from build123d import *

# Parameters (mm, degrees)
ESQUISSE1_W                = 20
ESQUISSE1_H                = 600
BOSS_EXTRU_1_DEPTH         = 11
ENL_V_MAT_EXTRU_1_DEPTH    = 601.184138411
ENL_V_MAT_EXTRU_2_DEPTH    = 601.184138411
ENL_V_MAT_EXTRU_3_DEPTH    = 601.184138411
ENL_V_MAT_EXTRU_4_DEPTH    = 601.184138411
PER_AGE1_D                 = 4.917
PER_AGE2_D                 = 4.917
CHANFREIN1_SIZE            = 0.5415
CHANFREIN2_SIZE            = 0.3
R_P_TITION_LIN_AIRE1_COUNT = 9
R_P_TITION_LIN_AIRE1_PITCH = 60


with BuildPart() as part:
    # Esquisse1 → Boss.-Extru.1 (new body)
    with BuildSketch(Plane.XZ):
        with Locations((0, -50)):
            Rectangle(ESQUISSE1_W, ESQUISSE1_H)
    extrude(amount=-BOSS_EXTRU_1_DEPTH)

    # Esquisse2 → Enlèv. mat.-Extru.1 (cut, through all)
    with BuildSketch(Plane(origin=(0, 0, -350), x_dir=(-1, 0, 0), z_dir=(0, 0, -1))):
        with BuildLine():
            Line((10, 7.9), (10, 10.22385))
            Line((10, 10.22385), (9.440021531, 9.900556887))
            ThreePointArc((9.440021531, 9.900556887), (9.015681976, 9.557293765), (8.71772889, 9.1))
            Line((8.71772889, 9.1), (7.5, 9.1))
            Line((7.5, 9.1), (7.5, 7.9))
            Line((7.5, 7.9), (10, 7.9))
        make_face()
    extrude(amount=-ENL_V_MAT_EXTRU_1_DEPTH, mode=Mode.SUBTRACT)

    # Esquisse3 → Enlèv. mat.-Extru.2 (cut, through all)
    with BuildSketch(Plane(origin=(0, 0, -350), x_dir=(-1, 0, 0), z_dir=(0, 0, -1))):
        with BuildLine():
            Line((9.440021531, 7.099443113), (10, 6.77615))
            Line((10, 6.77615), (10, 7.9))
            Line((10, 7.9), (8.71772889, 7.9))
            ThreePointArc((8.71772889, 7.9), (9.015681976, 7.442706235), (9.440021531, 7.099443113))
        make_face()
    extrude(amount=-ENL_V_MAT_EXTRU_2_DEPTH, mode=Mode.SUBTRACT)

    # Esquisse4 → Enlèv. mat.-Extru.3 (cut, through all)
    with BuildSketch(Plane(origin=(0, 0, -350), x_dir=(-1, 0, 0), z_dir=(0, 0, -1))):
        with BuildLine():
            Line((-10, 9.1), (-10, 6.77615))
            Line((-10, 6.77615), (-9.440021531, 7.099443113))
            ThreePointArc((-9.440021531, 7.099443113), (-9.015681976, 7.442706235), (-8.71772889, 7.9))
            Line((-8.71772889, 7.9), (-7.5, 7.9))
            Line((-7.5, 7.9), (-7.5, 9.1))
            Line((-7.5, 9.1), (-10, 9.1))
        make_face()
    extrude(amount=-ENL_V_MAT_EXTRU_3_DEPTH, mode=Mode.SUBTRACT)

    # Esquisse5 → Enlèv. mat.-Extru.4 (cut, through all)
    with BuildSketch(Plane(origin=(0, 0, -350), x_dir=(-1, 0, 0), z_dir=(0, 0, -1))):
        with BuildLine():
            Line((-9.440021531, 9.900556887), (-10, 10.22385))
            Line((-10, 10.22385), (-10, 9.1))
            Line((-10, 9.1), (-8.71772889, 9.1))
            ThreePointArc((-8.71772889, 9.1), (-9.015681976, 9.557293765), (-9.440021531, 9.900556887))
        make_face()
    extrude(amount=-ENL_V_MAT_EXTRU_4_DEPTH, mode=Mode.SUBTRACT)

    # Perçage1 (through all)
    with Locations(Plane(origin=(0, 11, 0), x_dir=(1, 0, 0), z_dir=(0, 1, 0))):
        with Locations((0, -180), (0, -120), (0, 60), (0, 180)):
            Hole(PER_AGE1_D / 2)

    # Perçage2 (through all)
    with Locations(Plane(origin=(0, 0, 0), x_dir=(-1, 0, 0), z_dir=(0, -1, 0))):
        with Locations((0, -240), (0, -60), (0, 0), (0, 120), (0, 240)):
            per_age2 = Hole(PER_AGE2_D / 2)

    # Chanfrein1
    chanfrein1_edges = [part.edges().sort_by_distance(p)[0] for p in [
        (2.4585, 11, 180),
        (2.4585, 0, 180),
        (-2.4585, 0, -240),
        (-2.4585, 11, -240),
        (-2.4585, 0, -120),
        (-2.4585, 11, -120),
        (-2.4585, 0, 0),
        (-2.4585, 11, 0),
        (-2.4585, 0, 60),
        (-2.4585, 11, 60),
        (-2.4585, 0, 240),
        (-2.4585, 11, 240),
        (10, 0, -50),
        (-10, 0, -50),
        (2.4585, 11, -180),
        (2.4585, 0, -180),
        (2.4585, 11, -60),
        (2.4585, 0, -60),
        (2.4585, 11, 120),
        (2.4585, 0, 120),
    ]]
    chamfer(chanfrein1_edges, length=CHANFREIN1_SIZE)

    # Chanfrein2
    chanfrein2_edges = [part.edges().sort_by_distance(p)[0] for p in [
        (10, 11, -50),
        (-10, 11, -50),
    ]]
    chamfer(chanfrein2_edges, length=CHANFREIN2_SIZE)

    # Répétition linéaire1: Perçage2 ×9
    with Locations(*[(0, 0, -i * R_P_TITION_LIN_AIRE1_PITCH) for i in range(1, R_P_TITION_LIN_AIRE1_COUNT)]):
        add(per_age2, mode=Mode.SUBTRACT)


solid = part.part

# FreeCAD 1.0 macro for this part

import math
import FreeCAD as App
import Part
import Sketcher
Q = App.Units.Quantity


def edges_at(feature, points):
    """Names of the edges that pass closest to the given points."""
    edges = feature.Shape.Edges
    near = lambda p: min(range(len(edges)), key=lambda i: edges[i].distToShape(Part.Vertex(*p))[0])
    return sorted({f"Edge{near(p) + 1}" for p in points})

doc = App.newDocument("Part")
params = doc.addObject("Spreadsheet::Sheet", "Params")
for row, (alias, value) in enumerate([
    ("sketch1_width", "20 mm"),
    ("sketch1_height", "600 mm"),
    ("pad1_length", "11 mm"),
    ("sketch2_radius", "1.75 mm"),
    ("sketch2_width", "2.5 mm"),
    ("sketch2_height", "1.2 mm"),
    ("sketch3_radius", "1.75 mm"),
    ("sketch4_radius", "1.75 mm"),
    ("sketch4_width", "2.5 mm"),
    ("sketch4_height", "1.2 mm"),
    ("sketch5_radius", "1.75 mm"),
    ("hole_diameter", "4.917 mm"),
    ("hole2_diameter", "4.917 mm"),
    ("chamfer_size", "0.5415 mm"),
    ("chamfer2_size", "0.3 mm"),
    ("linearpattern_pitch", "60 mm"),
], start=1):
    params.set(f"A{row}", alias)
    params.set(f"B{row}", "=" + value)
    params.setAlias(f"B{row}", alias)

body = doc.addObject("PartDesign::Body", "Body")

# Sketch on XZ plane
sketch1 = body.newObject("Sketcher::SketchObject", "Sketch")
sketch1.AttachmentSupport = (doc.getObject("XZ_Plane"), [""])
sketch1.MapMode = "FlatFace"
sketch1.addGeometry(Part.LineSegment(App.Vector(-10, 250, 0), App.Vector(-10, -350, 0)), False)
sketch1.addGeometry(Part.LineSegment(App.Vector(-10, -350, 0), App.Vector(10, -350, 0)), False)
sketch1.addGeometry(Part.LineSegment(App.Vector(10, -350, 0), App.Vector(10, 250, 0)), False)
sketch1.addGeometry(Part.LineSegment(App.Vector(10, 250, 0), App.Vector(-10, 250, 0)), False)
sketch1.addConstraint(Sketcher.Constraint("Coincident", 0, 2, 1, 1))
sketch1.addConstraint(Sketcher.Constraint("Coincident", 1, 2, 2, 1))
sketch1.addConstraint(Sketcher.Constraint("Coincident", 2, 2, 3, 1))
sketch1.addConstraint(Sketcher.Constraint("Coincident", 3, 2, 0, 1))
sketch1.addConstraint(Sketcher.Constraint("Vertical", 0))
sketch1.addConstraint(Sketcher.Constraint("Horizontal", 1))
sketch1.addConstraint(Sketcher.Constraint("Vertical", 2))
sketch1.addConstraint(Sketcher.Constraint("Horizontal", 3))
sketch1.addConstraint(Sketcher.Constraint("DistanceX", 1, 1, 1, 2, Q("20 mm")))
sketch1.addConstraint(Sketcher.Constraint("DistanceY", 0, 2, 0, 1, Q("600 mm")))
sketch1.addConstraint(Sketcher.Constraint("DistanceX", 0, 2, -1, 1, Q("10 mm")))
sketch1.addConstraint(Sketcher.Constraint("DistanceY", 0, 2, -1, 1, Q("350 mm")))
sketch1.setExpression("Constraints[8]", "Params.sketch1_width")
sketch1.setExpression("Constraints[9]", "Params.sketch1_height")
pad1 = body.newObject("PartDesign::Pad", "Pad")
pad1.Profile = sketch1
pad1.setExpression("Length", "Params.pad1_length")
pad1.Reversed = True

# Sketch on XY plane
sketch2 = body.newObject("Sketcher::SketchObject", "Sketch001")
sketch2.AttachmentSupport = (doc.getObject("XY_Plane"), [""])
sketch2.MapMode = "FlatFace"
sketch2.AttachmentOffset = App.Placement(App.Vector(0, 0, -350), App.Rotation())
sketch2.addGeometry(Part.LineSegment(App.Vector(-10, 7.9, 0), App.Vector(-10, 10.22385, 0)), False)
sketch2.addGeometry(Part.LineSegment(App.Vector(-10, 10.22385, 0), App.Vector(-9.440022, 9.900557, 0)), False)
sketch2.addGeometry(Part.ArcOfCircle(Part.Circle(App.Vector(-10.315, 8.385, 0), App.Vector(0, 0, 1), 1.75), math.radians(24.115126), math.radians(60.000814)), False)
sketch2.addGeometry(Part.LineSegment(App.Vector(-8.717729, 9.1, 0), App.Vector(-7.5, 9.1, 0)), False)
sketch2.addGeometry(Part.LineSegment(App.Vector(-7.5, 9.1, 0), App.Vector(-7.5, 7.9, 0)), False)
sketch2.addGeometry(Part.LineSegment(App.Vector(-7.5, 7.9, 0), App.Vector(-10, 7.9, 0)), False)
sketch2.addConstraint(Sketcher.Constraint("Coincident", 0, 2, 1, 1))
sketch2.addConstraint(Sketcher.Constraint("Tangent", 1, 2, 2, 2))
sketch2.addConstraint(Sketcher.Constraint("Coincident", 2, 1, 3, 1))
sketch2.addConstraint(Sketcher.Constraint("Coincident", 3, 2, 4, 1))
sketch2.addConstraint(Sketcher.Constraint("Coincident", 4, 2, 5, 1))
sketch2.addConstraint(Sketcher.Constraint("Coincident", 5, 2, 0, 1))
sketch2.addConstraint(Sketcher.Constraint("Vertical", 0))
sketch2.addConstraint(Sketcher.Constraint("Horizontal", 3))
sketch2.addConstraint(Sketcher.Constraint("Vertical", 4))
sketch2.addConstraint(Sketcher.Constraint("Horizontal", 5))
sketch2.addConstraint(Sketcher.Constraint("Radius", 2, Q("1.75 mm")))
sketch2.addConstraint(Sketcher.Constraint("DistanceX", 5, 2, 5, 1, Q("2.5 mm")))
sketch2.addConstraint(Sketcher.Constraint("DistanceY", 4, 2, 4, 1, Q("1.2 mm")))
sketch2.addConstraint(Sketcher.Constraint("DistanceX", 0, 2, -1, 1, Q("10 mm")))
sketch2.addConstraint(Sketcher.Constraint("DistanceY", -1, 1, 2, 1, Q("9.1 mm")))
sketch2.addConstraint(Sketcher.Constraint("DistanceX", 2, 3, -1, 1, Q("10.315 mm")))
sketch2.addConstraint(Sketcher.Constraint("DistanceY", -1, 1, 2, 3, Q("8.385 mm")))
sketch2.addConstraint(Sketcher.Constraint("DistanceY", 0, 1, 0, 2, Q("2.32385 mm")))
sketch2.setExpression("Constraints[10]", "Params.sketch2_radius")
sketch2.setExpression("Constraints[11]", "Params.sketch2_width")
sketch2.setExpression("Constraints[12]", "Params.sketch2_height")
pocket1 = body.newObject("PartDesign::Pocket", "Pocket")
pocket1.Profile = sketch2
pocket1.Type = "ThroughAll"
pocket1.Reversed = True

# Sketch on XY plane
sketch3 = body.newObject("Sketcher::SketchObject", "Sketch002")
sketch3.AttachmentSupport = (doc.getObject("XY_Plane"), [""])
sketch3.MapMode = "FlatFace"
sketch3.AttachmentOffset = App.Placement(App.Vector(0, 0, -350), App.Rotation())
sketch3.addGeometry(Part.LineSegment(App.Vector(-9.440022, 7.099443, 0), App.Vector(-10, 6.77615, 0)), False)
sketch3.addGeometry(Part.LineSegment(App.Vector(-10, 6.77615, 0), App.Vector(-10, 7.9, 0)), False)
sketch3.addGeometry(Part.LineSegment(App.Vector(-10, 7.9, 0), App.Vector(-8.717729, 7.9, 0)), False)
sketch3.addGeometry(Part.ArcOfCircle(Part.Circle(App.Vector(-10.315, 8.615, 0), App.Vector(0, 0, 1), 1.75), math.radians(-60.000814), math.radians(-24.115126)), False)
sketch3.addConstraint(Sketcher.Constraint("Coincident", 0, 2, 1, 1))
sketch3.addConstraint(Sketcher.Constraint("Coincident", 1, 2, 2, 1))
sketch3.addConstraint(Sketcher.Constraint("Coincident", 2, 2, 3, 2))
sketch3.addConstraint(Sketcher.Constraint("Tangent", 3, 1, 0, 1))
sketch3.addConstraint(Sketcher.Constraint("Vertical", 1))
sketch3.addConstraint(Sketcher.Constraint("Horizontal", 2))
sketch3.addConstraint(Sketcher.Constraint("Radius", 3, Q("1.75 mm")))
sketch3.addConstraint(Sketcher.Constraint("DistanceX", 0, 2, -1, 1, Q("10 mm")))
sketch3.addConstraint(Sketcher.Constraint("DistanceY", -1, 1, 1, 2, Q("7.9 mm")))
sketch3.addConstraint(Sketcher.Constraint("DistanceX", 3, 3, -1, 1, Q("10.315 mm")))
sketch3.addConstraint(Sketcher.Constraint("DistanceY", -1, 1, 3, 3, Q("8.615 mm")))
sketch3.addConstraint(Sketcher.Constraint("DistanceY", 1, 1, 1, 2, Q("1.12385 mm")))
sketch3.setExpression("Constraints[6]", "Params.sketch3_radius")
pocket2 = body.newObject("PartDesign::Pocket", "Pocket001")
pocket2.Profile = sketch3
pocket2.Type = "ThroughAll"
pocket2.Reversed = True

# Sketch on XY plane
sketch4 = body.newObject("Sketcher::SketchObject", "Sketch003")
sketch4.AttachmentSupport = (doc.getObject("XY_Plane"), [""])
sketch4.MapMode = "FlatFace"
sketch4.AttachmentOffset = App.Placement(App.Vector(0, 0, -350), App.Rotation())
sketch4.addGeometry(Part.LineSegment(App.Vector(10, 9.1, 0), App.Vector(10, 6.77615, 0)), False)
sketch4.addGeometry(Part.LineSegment(App.Vector(10, 6.77615, 0), App.Vector(9.440022, 7.099443, 0)), False)
sketch4.addGeometry(Part.ArcOfCircle(Part.Circle(App.Vector(10.315, 8.615, 0), App.Vector(0, 0, 1), 1.75), math.radians(-155.884874), math.radians(-119.999186)), False)
sketch4.addGeometry(Part.LineSegment(App.Vector(8.717729, 7.9, 0), App.Vector(7.5, 7.9, 0)), False)
sketch4.addGeometry(Part.LineSegment(App.Vector(7.5, 7.9, 0), App.Vector(7.5, 9.1, 0)), False)
sketch4.addGeometry(Part.LineSegment(App.Vector(7.5, 9.1, 0), App.Vector(10, 9.1, 0)), False)
sketch4.addConstraint(Sketcher.Constraint("Coincident", 0, 2, 1, 1))
sketch4.addConstraint(Sketcher.Constraint("Tangent", 1, 2, 2, 2))
sketch4.addConstraint(Sketcher.Constraint("Coincident", 2, 1, 3, 1))
sketch4.addConstraint(Sketcher.Constraint("Coincident", 3, 2, 4, 1))
sketch4.addConstraint(Sketcher.Constraint("Coincident", 4, 2, 5, 1))
sketch4.addConstraint(Sketcher.Constraint("Coincident", 5, 2, 0, 1))
sketch4.addConstraint(Sketcher.Constraint("Vertical", 0))
sketch4.addConstraint(Sketcher.Constraint("Horizontal", 3))
sketch4.addConstraint(Sketcher.Constraint("Vertical", 4))
sketch4.addConstraint(Sketcher.Constraint("Horizontal", 5))
sketch4.addConstraint(Sketcher.Constraint("Radius", 2, Q("1.75 mm")))
sketch4.addConstraint(Sketcher.Constraint("DistanceX", 5, 1, 5, 2, Q("2.5 mm")))
sketch4.addConstraint(Sketcher.Constraint("DistanceY", 4, 1, 4, 2, Q("1.2 mm")))
sketch4.addConstraint(Sketcher.Constraint("DistanceX", -1, 1, 0, 2, Q("10 mm")))
sketch4.addConstraint(Sketcher.Constraint("DistanceY", -1, 1, 2, 1, Q("7.9 mm")))
sketch4.addConstraint(Sketcher.Constraint("DistanceX", -1, 1, 2, 3, Q("10.315 mm")))
sketch4.addConstraint(Sketcher.Constraint("DistanceY", -1, 1, 2, 3, Q("8.615 mm")))
sketch4.addConstraint(Sketcher.Constraint("DistanceY", 0, 2, 0, 1, Q("2.32385 mm")))
sketch4.setExpression("Constraints[10]", "Params.sketch4_radius")
sketch4.setExpression("Constraints[11]", "Params.sketch4_width")
sketch4.setExpression("Constraints[12]", "Params.sketch4_height")
pocket3 = body.newObject("PartDesign::Pocket", "Pocket002")
pocket3.Profile = sketch4
pocket3.Type = "ThroughAll"
pocket3.Reversed = True

# Sketch on XY plane
sketch5 = body.newObject("Sketcher::SketchObject", "Sketch004")
sketch5.AttachmentSupport = (doc.getObject("XY_Plane"), [""])
sketch5.MapMode = "FlatFace"
sketch5.AttachmentOffset = App.Placement(App.Vector(0, 0, -350), App.Rotation())
sketch5.addGeometry(Part.LineSegment(App.Vector(9.440022, 9.900557, 0), App.Vector(10, 10.22385, 0)), False)
sketch5.addGeometry(Part.LineSegment(App.Vector(10, 10.22385, 0), App.Vector(10, 9.1, 0)), False)
sketch5.addGeometry(Part.LineSegment(App.Vector(10, 9.1, 0), App.Vector(8.717729, 9.1, 0)), False)
sketch5.addGeometry(Part.ArcOfCircle(Part.Circle(App.Vector(10.315, 8.385, 0), App.Vector(0, 0, 1), 1.75), math.radians(119.999186), math.radians(155.884874)), False)
sketch5.addConstraint(Sketcher.Constraint("Coincident", 0, 2, 1, 1))
sketch5.addConstraint(Sketcher.Constraint("Coincident", 1, 2, 2, 1))
sketch5.addConstraint(Sketcher.Constraint("Coincident", 2, 2, 3, 2))
sketch5.addConstraint(Sketcher.Constraint("Tangent", 3, 1, 0, 1))
sketch5.addConstraint(Sketcher.Constraint("Vertical", 1))
sketch5.addConstraint(Sketcher.Constraint("Horizontal", 2))
sketch5.addConstraint(Sketcher.Constraint("Radius", 3, Q("1.75 mm")))
sketch5.addConstraint(Sketcher.Constraint("DistanceX", -1, 1, 0, 2, Q("10 mm")))
sketch5.addConstraint(Sketcher.Constraint("DistanceY", -1, 1, 1, 2, Q("9.1 mm")))
sketch5.addConstraint(Sketcher.Constraint("DistanceX", -1, 1, 3, 3, Q("10.315 mm")))
sketch5.addConstraint(Sketcher.Constraint("DistanceY", -1, 1, 3, 3, Q("8.385 mm")))
sketch5.addConstraint(Sketcher.Constraint("DistanceY", 1, 2, 1, 1, Q("1.12385 mm")))
sketch5.setExpression("Constraints[6]", "Params.sketch5_radius")
pocket4 = body.newObject("PartDesign::Pocket", "Pocket003")
pocket4.Profile = sketch5
pocket4.Type = "ThroughAll"
pocket4.Reversed = True

# Sketch on XZ plane
sketch6 = body.newObject("Sketcher::SketchObject", "Sketch005")
sketch6.AttachmentSupport = (doc.getObject("XZ_Plane"), [""])
sketch6.MapMode = "FlatFace"
sketch6.AttachmentOffset = App.Placement(App.Vector(0, 0, -11), App.Rotation())
sketch6.addGeometry(Part.Circle(App.Vector(0, 180, 0), App.Vector(0, 0, 1), 2.4585), False)
sketch6.addGeometry(Part.Circle(App.Vector(0, 120, 0), App.Vector(0, 0, 1), 2.4585), False)
sketch6.addGeometry(Part.Circle(App.Vector(0, -60, 0), App.Vector(0, 0, 1), 2.4585), False)
sketch6.addGeometry(Part.Circle(App.Vector(0, -180, 0), App.Vector(0, 0, 1), 2.4585), False)
sketch6.addConstraint(Sketcher.Constraint("Equal", 0, 1))
sketch6.addConstraint(Sketcher.Constraint("Equal", 1, 2))
sketch6.addConstraint(Sketcher.Constraint("Equal", 2, 3))
sketch6.addConstraint(Sketcher.Constraint("Symmetric", 0, 3, 3, 3, -1, 1))
sketch6.addConstraint(Sketcher.Constraint("PointOnObject", 0, 3, -2))
sketch6.addConstraint(Sketcher.Constraint("PointOnObject", 1, 3, -2))
sketch6.addConstraint(Sketcher.Constraint("PointOnObject", 2, 3, -2))
sketch6.addConstraint(Sketcher.Constraint("Diameter", 0, Q("4.917 mm")))
sketch6.addConstraint(Sketcher.Constraint("DistanceY", -1, 1, 0, 3, Q("180 mm")))
sketch6.addConstraint(Sketcher.Constraint("DistanceY", -1, 1, 1, 3, Q("120 mm")))
sketch6.addConstraint(Sketcher.Constraint("DistanceY", 2, 3, -1, 1, Q("60 mm")))
doc.recompute()
hole = body.newObject("PartDesign::Hole", "Hole")
hole.Profile = sketch6
hole.ThreadType = "None"
hole.setExpression("Diameter", "Params.hole_diameter")
hole.DepthType = "ThroughAll"
hole.Reversed = True

# Sketch on XZ plane
sketch7 = body.newObject("Sketcher::SketchObject", "Sketch006")
sketch7.AttachmentSupport = (doc.getObject("XZ_Plane"), [""])
sketch7.MapMode = "FlatFace"
sketch7.addGeometry(Part.Circle(App.Vector(0, 240, 0), App.Vector(0, 0, 1), 2.4585), False)
sketch7.addGeometry(Part.Circle(App.Vector(0, 60, 0), App.Vector(0, 0, 1), 2.4585), False)
sketch7.addGeometry(Part.Circle(App.Vector(0, 0, 0), App.Vector(0, 0, 1), 2.4585), False)
sketch7.addGeometry(Part.Circle(App.Vector(0, -120, 0), App.Vector(0, 0, 1), 2.4585), False)
sketch7.addGeometry(Part.Circle(App.Vector(0, -240, 0), App.Vector(0, 0, 1), 2.4585), False)
sketch7.addConstraint(Sketcher.Constraint("Coincident", 2, 3, -1, 1))
sketch7.addConstraint(Sketcher.Constraint("Equal", 0, 1))
sketch7.addConstraint(Sketcher.Constraint("Equal", 1, 2))
sketch7.addConstraint(Sketcher.Constraint("Equal", 2, 3))
sketch7.addConstraint(Sketcher.Constraint("Equal", 3, 4))
sketch7.addConstraint(Sketcher.Constraint("Symmetric", 0, 3, 4, 3, -1, 1))
sketch7.addConstraint(Sketcher.Constraint("PointOnObject", 0, 3, -2))
sketch7.addConstraint(Sketcher.Constraint("PointOnObject", 1, 3, -2))
sketch7.addConstraint(Sketcher.Constraint("PointOnObject", 3, 3, -2))
sketch7.addConstraint(Sketcher.Constraint("Diameter", 0, Q("4.917 mm")))
sketch7.addConstraint(Sketcher.Constraint("DistanceY", -1, 1, 0, 3, Q("240 mm")))
sketch7.addConstraint(Sketcher.Constraint("DistanceY", -1, 1, 1, 3, Q("60 mm")))
sketch7.addConstraint(Sketcher.Constraint("DistanceY", 3, 3, -1, 1, Q("120 mm")))
doc.recompute()
hole2 = body.newObject("PartDesign::Hole", "Hole001")
hole2.Profile = sketch7
hole2.ThreadType = "None"
hole2.setExpression("Diameter", "Params.hole2_diameter")
hole2.DepthType = "ThroughAll"
doc.recompute()

chamfer = body.newObject("PartDesign::Chamfer", "Chamfer")
chamfer.Base = (hole2, edges_at(hole2, [
    (2.458, 11, 180),
    (2.458, 0, 180),
    (-2.458, 0, -240),
    (-2.458, 11, -240),
    (-2.458, 0, -120),
    (-2.458, 11, -120),
    (-2.458, 0, 0),
    (-2.458, 11, 0),
    (-2.458, 0, 60),
    (-2.458, 11, 60),
    (-2.458, 0, 240),
    (-2.458, 11, 240),
    (10, 0, -50),
    (-10, 0, -50),
    (2.458, 11, -180),
    (2.458, 0, -180),
    (2.458, 11, -60),
    (2.458, 0, -60),
    (2.458, 11, 120),
    (2.458, 0, 120),
]))
chamfer.setExpression("Size", "Params.chamfer_size")
doc.recompute()

chamfer2 = body.newObject("PartDesign::Chamfer", "Chamfer001")
chamfer2.Base = (chamfer, edges_at(chamfer, [(10, 11, -50), (-10, 11, -50)]))
chamfer2.setExpression("Size", "Params.chamfer2_size")
doc.recompute()

linearpattern = body.newObject("PartDesign::LinearPattern", "LinearPattern")
linearpattern.Originals = [hole2]
linearpattern.Direction = (doc.getObject("Z_Axis"), [""])
linearpattern.Mode = "offset"
linearpattern.setExpression("Offset", "Params.linearpattern_pitch")
linearpattern.Occurrences = 9
linearpattern.Reversed = True
body.Tip = linearpattern

doc.recompute()
